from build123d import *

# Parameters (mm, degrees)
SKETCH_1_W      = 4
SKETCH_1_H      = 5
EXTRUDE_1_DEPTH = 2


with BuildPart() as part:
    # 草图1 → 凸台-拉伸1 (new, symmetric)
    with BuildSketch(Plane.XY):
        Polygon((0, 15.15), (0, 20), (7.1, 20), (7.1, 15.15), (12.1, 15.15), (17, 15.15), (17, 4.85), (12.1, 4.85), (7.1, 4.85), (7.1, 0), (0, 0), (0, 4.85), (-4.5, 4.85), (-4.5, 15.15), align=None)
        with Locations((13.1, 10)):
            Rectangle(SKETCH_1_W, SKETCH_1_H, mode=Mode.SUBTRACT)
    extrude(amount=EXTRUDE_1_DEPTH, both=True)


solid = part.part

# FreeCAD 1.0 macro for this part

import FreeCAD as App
import Part
import Sketcher

V = App.Vector

doc = App.newDocument("Part")
params = doc.addObject("Spreadsheet::Sheet", "Params")
for row, (alias, value) in enumerate([
    ("sketch1_width", "4 mm"),
    ("sketch1_height", "5 mm"),
    ("sketch1_width2", "4.5 mm"),
    ("sketch1_width3", "7.1 mm"),
    ("sketch1_width4", "9.9 mm"),
    ("pad1_length", "4 mm"),
], start=1):
    params.set(f"A{row}", alias)
    params.set(f"B{row}", "=" + value)
    params.setAlias(f"B{row}", alias)

body = doc.addObject("PartDesign::Body", "Body")

sketch1 = body.newObject("Sketcher::SketchObject", "Sketch")
sketch1.AttachmentSupport = (doc.getObject("XY_Plane"), [""])
sketch1.MapMode = "FlatFace"
sketch1.addGeometry([
    Part.LineSegment(V(0, 20, 0), V(0, 15.2, 0)),
    Part.LineSegment(V(0, 15.2, 0), V(-4.5, 15.2, 0)),
    Part.LineSegment(V(-4.5, 15.2, 0), V(-4.5, 4.8, 0)),
    Part.LineSegment(V(-4.5, 4.8, 0), V(0, 4.8, 0)),
    Part.LineSegment(V(0, 4.8, 0), V(0, 0, 0)),
    Part.LineSegment(V(0, 0, 0), V(7.1, 0, 0)),
    Part.LineSegment(V(7.1, 0, 0), V(7.1, 4.8, 0)),
    Part.LineSegment(V(7.1, 4.8, 0), V(17, 4.8, 0)),
    Part.LineSegment(V(17, 4.8, 0), V(17, 15.2, 0)),
    Part.LineSegment(V(17, 15.2, 0), V(7.1, 15.2, 0)),
    Part.LineSegment(V(7.1, 15.2, 0), V(7.1, 20, 0)),
    Part.LineSegment(V(7.1, 20, 0), V(0, 20, 0)),
    Part.LineSegment(V(11.1, 7.5, 0), V(11.1, 12.5, 0)),
    Part.LineSegment(V(11.1, 12.5, 0), V(15.1, 12.5, 0)),
    Part.LineSegment(V(15.1, 12.5, 0), V(15.1, 7.5, 0)),
    Part.LineSegment(V(15.1, 7.5, 0), V(11.1, 7.5, 0)),
], False)
sketch1.addConstraint([
    Sketcher.Constraint("Coincident", 0, 2, 1, 1),
    Sketcher.Constraint("Coincident", 1, 2, 2, 1),
    Sketcher.Constraint("Coincident", 2, 2, 3, 1),
    Sketcher.Constraint("Coincident", 3, 2, 4, 1),
    Sketcher.Constraint("Coincident", 4, 2, 5, 1),
    Sketcher.Constraint("Coincident", 5, 2, 6, 1),
    Sketcher.Constraint("Coincident", 6, 2, 7, 1),
    Sketcher.Constraint("Coincident", 7, 2, 8, 1),
    Sketcher.Constraint("Coincident", 8, 2, 9, 1),
    Sketcher.Constraint("Coincident", 9, 2, 10, 1),
    Sketcher.Constraint("Coincident", 10, 2, 11, 1),
    Sketcher.Constraint("Coincident", 11, 2, 0, 1),
    Sketcher.Constraint("Coincident", 12, 2, 13, 1),
    Sketcher.Constraint("Coincident", 13, 2, 14, 1),
    Sketcher.Constraint("Coincident", 14, 2, 15, 1),
    Sketcher.Constraint("Coincident", 15, 2, 12, 1),
    Sketcher.Constraint("Vertical", 0),
    Sketcher.Constraint("Horizontal", 1),
    Sketcher.Constraint("Vertical", 2),
    Sketcher.Constraint("Horizontal", 3),
    Sketcher.Constraint("Vertical", 4),
    Sketcher.Constraint("Horizontal", 5),
    Sketcher.Constraint("Vertical", 6),
    Sketcher.Constraint("Horizontal", 7),
    Sketcher.Constraint("Vertical", 8),
    Sketcher.Constraint("Horizontal", 9),
    Sketcher.Constraint("Vertical", 10),
    Sketcher.Constraint("Horizontal", 11),
    Sketcher.Constraint("Vertical", 12),
    Sketcher.Constraint("Horizontal", 13),
    Sketcher.Constraint("Vertical", 14),
    Sketcher.Constraint("Horizontal", 15),
    Sketcher.Constraint("Coincident", 4, 2, -1, 1),
    Sketcher.Constraint("PointOnObject", 0, 2, -2),
    Sketcher.Constraint("Horizontal", 3, 2, 6, 2),
    Sketcher.Constraint("Horizontal", 1, 2, 8, 2),
    Sketcher.Constraint("Vertical", 6, 2, 9, 2),
    Sketcher.Constraint("Equal", 0, 4),
    Sketcher.Constraint("DistanceX", 13, 1, 13, 2, 4.0),
    Sketcher.Constraint("DistanceY", 12, 1, 12, 2, 5.0),
    Sketcher.Constraint("DistanceX", 1, 2, 1, 1, 4.5),
    Sketcher.Constraint("DistanceX", 5, 1, 5, 2, 7.1),
    Sketcher.Constraint("DistanceX", 7, 1, 7, 2, 9.9),
    Sketcher.Constraint("DistanceY", 2, 2, 2, 1, 10.3),
    Sketcher.Constraint("DistanceY", -1, 1, 10, 2, 20.0),
    Sketcher.Constraint("DistanceX", 9, 2, 12, 2, 4.0),
    Sketcher.Constraint("DistanceY", -1, 1, 12, 2, 12.5),
])
sketch1.setExpression("Constraints[38]", "Params.sketch1_width")
sketch1.setExpression("Constraints[39]", "Params.sketch1_height")
sketch1.setExpression("Constraints[40]", "Params.sketch1_width2")
sketch1.setExpression("Constraints[41]", "Params.sketch1_width3")
sketch1.setExpression("Constraints[42]", "Params.sketch1_width4")
pad1 = body.newObject("PartDesign::Pad", "Pad")
pad1.Profile = sketch1
pad1.setExpression("Length", "Params.pad1_length")
pad1.Midplane = True

doc.recompute()
